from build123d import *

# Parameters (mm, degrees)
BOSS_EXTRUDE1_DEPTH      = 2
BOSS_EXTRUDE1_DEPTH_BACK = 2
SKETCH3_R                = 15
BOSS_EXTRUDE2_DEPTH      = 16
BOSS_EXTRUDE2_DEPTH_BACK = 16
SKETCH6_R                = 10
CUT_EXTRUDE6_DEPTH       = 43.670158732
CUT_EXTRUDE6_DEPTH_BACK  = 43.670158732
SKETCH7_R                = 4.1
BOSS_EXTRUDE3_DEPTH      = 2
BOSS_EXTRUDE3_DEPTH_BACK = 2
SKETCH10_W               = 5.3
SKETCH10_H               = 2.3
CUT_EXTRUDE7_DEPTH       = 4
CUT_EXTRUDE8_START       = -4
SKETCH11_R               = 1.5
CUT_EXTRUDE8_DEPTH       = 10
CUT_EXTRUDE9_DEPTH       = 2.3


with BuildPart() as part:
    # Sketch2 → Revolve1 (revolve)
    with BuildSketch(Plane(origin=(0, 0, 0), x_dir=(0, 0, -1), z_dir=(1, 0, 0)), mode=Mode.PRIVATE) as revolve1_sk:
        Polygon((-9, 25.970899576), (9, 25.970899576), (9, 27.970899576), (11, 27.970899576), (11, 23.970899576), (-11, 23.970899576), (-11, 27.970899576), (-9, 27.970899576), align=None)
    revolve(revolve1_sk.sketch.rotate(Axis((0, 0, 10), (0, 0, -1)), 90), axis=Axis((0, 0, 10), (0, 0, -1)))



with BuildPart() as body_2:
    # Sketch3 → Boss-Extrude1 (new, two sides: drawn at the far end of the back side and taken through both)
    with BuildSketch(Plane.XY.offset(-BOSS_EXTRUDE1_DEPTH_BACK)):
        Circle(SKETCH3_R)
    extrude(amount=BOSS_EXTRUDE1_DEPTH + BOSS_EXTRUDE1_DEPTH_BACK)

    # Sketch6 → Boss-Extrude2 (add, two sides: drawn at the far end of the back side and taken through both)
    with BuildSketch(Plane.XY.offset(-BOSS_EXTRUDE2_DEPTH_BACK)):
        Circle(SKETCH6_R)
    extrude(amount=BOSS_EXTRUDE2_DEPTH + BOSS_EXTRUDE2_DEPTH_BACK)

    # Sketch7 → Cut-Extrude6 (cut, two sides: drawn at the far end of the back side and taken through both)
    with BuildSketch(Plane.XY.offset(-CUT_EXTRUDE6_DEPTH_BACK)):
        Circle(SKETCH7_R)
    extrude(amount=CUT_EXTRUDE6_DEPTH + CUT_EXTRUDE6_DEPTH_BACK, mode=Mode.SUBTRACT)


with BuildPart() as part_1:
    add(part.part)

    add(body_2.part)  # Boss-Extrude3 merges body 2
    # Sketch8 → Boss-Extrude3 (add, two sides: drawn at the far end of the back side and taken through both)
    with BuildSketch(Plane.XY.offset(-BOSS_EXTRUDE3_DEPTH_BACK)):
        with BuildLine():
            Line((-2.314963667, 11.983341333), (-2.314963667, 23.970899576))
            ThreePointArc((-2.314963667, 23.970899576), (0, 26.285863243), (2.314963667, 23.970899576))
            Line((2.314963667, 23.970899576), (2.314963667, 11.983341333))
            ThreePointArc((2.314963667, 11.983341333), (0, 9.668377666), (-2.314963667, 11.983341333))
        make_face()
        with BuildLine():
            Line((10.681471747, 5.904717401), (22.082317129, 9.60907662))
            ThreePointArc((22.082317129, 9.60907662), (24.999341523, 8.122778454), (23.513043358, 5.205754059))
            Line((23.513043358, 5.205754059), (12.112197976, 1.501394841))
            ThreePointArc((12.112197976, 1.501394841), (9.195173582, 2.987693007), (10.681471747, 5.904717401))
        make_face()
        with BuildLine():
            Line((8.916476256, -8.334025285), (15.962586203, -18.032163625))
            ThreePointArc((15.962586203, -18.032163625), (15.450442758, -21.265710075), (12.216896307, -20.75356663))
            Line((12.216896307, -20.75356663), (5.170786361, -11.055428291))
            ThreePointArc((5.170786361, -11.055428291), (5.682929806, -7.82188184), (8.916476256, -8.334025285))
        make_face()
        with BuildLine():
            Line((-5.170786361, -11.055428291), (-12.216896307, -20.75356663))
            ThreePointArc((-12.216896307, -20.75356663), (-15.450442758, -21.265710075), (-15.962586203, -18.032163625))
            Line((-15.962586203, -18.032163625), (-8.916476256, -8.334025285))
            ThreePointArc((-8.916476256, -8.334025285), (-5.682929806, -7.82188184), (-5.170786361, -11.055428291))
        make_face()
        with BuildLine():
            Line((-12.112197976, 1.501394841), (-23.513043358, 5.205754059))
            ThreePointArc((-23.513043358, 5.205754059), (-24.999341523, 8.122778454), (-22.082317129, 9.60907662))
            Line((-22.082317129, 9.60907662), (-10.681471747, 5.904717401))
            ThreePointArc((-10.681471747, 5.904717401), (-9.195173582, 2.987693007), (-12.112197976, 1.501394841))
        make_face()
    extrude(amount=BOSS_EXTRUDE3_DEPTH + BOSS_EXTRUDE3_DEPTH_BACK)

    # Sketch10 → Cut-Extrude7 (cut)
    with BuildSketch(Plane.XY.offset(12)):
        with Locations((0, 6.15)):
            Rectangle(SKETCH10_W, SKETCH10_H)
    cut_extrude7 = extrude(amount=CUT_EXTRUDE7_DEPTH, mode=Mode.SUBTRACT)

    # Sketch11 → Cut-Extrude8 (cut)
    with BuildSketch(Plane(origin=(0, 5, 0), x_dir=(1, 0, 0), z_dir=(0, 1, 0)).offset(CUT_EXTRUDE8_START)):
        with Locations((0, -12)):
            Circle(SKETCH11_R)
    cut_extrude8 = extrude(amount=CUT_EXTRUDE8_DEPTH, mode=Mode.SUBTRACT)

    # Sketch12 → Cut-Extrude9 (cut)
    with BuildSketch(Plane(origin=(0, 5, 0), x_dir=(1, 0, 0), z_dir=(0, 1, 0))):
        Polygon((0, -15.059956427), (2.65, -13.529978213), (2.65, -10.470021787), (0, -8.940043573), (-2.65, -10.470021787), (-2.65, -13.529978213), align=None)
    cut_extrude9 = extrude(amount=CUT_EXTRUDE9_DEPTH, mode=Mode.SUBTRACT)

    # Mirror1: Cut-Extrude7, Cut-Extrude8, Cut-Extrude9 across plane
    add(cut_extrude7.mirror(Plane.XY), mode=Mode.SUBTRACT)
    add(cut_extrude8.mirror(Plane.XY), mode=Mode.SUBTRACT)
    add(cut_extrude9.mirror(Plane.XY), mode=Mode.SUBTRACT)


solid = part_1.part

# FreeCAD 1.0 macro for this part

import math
import FreeCAD as App
import Part
import Sketcher
Q = App.Units.Quantity


def add_polygon(sketch, points):
    """Adds a closed chain of lines whose ends are joined by coincident constraints."""
    first, n = sketch.GeometryCount, len(points)
    for a, b in zip(points, points[1:] + points[:1]):
        sketch.addGeometry(Part.LineSegment(App.Vector(*a, 0), App.Vector(*b, 0)), False)
    for i in range(n):
        sketch.addConstraint(Sketcher.Constraint("Coincident", first + i, 2, first + (i + 1) % n, 1))

doc = App.newDocument("Part")
body = doc.addObject("PartDesign::Body", "Body")

sketch1 = body.newObject("Sketcher::SketchObject", "Sketch")
sketch1.AttachmentSupport = (doc.getObject("YZ_Plane"), [""])
sketch1.MapMode = "FlatFace"
add_polygon(sketch1, [(26, -9), (26, 9), (28, 9), (28, 11), (24, 11), (24, -11), (28, -11), (28, -9)])
sketch1.addConstraint([
    Sketcher.Constraint("Vertical", 0),
    Sketcher.Constraint("Horizontal", 1),
    Sketcher.Constraint("Vertical", 2),
    Sketcher.Constraint("Horizontal", 3),
    Sketcher.Constraint("Vertical", 4),
    Sketcher.Constraint("Horizontal", 5),
    Sketcher.Constraint("Vertical", 6),
    Sketcher.Constraint("Horizontal", 7),
    Sketcher.Constraint("Symmetric", 2, 2, 5, 2, -1),
    Sketcher.Constraint("Equal", 7, 2),
    Sketcher.Constraint("Equal", 2, 6),
    Sketcher.Constraint("DistanceX", 1, 1, 1, 2, Q("2 mm")),
    Sketcher.Constraint("DistanceX", 3, 2, 3, 1, Q("4 mm")),
    Sketcher.Constraint("DistanceY", 0, 1, 0, 2, Q("18 mm")),
    Sketcher.Constraint("DistanceX", -1, 1, 0, 2, Q("25.9709 mm")),
])
revolution = body.newObject("PartDesign::Revolution", "Revolution")
revolution.Profile = sketch1
revolution.ReferenceAxis = (sketch1, ["V_Axis"])
revolution.Angle = 360
body2 = doc.addObject("PartDesign::Body", "Body001")

sketch2 = body2.newObject("Sketcher::SketchObject", "Sketch001")
sketch2.AttachmentSupport = (doc.getObject("XY_Plane001"), [""])
sketch2.MapMode = "FlatFace"
sketch2.addGeometry(Part.Circle(App.Vector(0, 0, 0), App.Vector(0, 0, 1), 15), False)
sketch2.addConstraint([
    Sketcher.Constraint("Coincident", 0, 3, -1, 1),
    Sketcher.Constraint("Diameter", 0, Q("30 mm")),
])
pad1 = body2.newObject("PartDesign::Pad", "Pad")
pad1.Profile = sketch2
pad1.Type = "TwoLengths"
pad1.Length = 2
pad1.Length2 = 2

sketch3 = body2.newObject("Sketcher::SketchObject", "Sketch002")
sketch3.AttachmentSupport = (doc.getObject("XY_Plane001"), [""])
sketch3.MapMode = "FlatFace"
sketch3.addGeometry(Part.Circle(App.Vector(0, 0, 0), App.Vector(0, 0, 1), 10), False)
sketch3.addConstraint([
    Sketcher.Constraint("Coincident", 0, 3, -1, 1),
    Sketcher.Constraint("Diameter", 0, Q("20 mm")),
])
pad2 = body2.newObject("PartDesign::Pad", "Pad001")
pad2.Profile = sketch3
pad2.Type = "TwoLengths"
pad2.Length = 16
pad2.Length2 = 16

sketch4 = body2.newObject("Sketcher::SketchObject", "Sketch003")
sketch4.AttachmentSupport = (doc.getObject("XY_Plane001"), [""])
sketch4.MapMode = "FlatFace"
sketch4.addGeometry(Part.Circle(App.Vector(0, 0, 0), App.Vector(0, 0, 1), 4.1), False)
sketch4.addConstraint([
    Sketcher.Constraint("Coincident", 0, 3, -1, 1),
    Sketcher.Constraint("Diameter", 0, Q("8.2 mm")),
])
pocket1 = body2.newObject("PartDesign::Pocket", "Pocket")
pocket1.Profile = sketch4
pocket1.Type = "ThroughAll"
pocket1.Midplane = True
body.AllowCompound = True
doc.recompute()

boolean = body.newObject("PartDesign::Boolean", "Boolean")
boolean.Type = "Fuse"
boolean.addObjects([body2])

sketch5 = body.newObject("Sketcher::SketchObject", "Sketch004")
sketch5.AttachmentSupport = (doc.getObject("XY_Plane"), [""])
sketch5.MapMode = "FlatFace"
sketch5.addGeometry([
    Part.LineSegment(App.Vector(-2.3, 24, 0), App.Vector(-2.3, 12, 0)),
    Part.ArcOfCircle(Part.Circle(App.Vector(0, 12, 0), App.Vector(0, 0, 1), 2.3), math.radians(180), math.radians(360)),
    Part.LineSegment(App.Vector(2.3, 12, 0), App.Vector(2.3, 24, 0)),
    Part.ArcOfCircle(Part.Circle(App.Vector(0, 24, 0), App.Vector(0, 0, 1), 2.3), math.radians(0), math.radians(180)),
    Part.LineSegment(App.Vector(22.1, 9.6, 0), App.Vector(10.7, 5.9, 0)),
    Part.ArcOfCircle(Part.Circle(App.Vector(11.4, 3.7, 0), App.Vector(0, 0, 1), 2.3), math.radians(108), math.radians(288)),
    Part.LineSegment(App.Vector(12.1, 1.5, 0), App.Vector(23.5, 5.2, 0)),
    Part.ArcOfCircle(Part.Circle(App.Vector(22.8, 7.4, 0), App.Vector(0, 0, 1), 2.3), math.radians(-72), math.radians(108)),
    Part.LineSegment(App.Vector(16, -18, 0), App.Vector(8.9, -8.3, 0)),
    Part.ArcOfCircle(Part.Circle(App.Vector(7, -9.7, 0), App.Vector(0, 0, 1), 2.3), math.radians(36), math.radians(216)),
    Part.LineSegment(App.Vector(5.2, -11.1, 0), App.Vector(12.2, -20.8, 0)),
    Part.ArcOfCircle(Part.Circle(App.Vector(14.1, -19.4, 0), App.Vector(0, 0, 1), 2.3), math.radians(-144), math.radians(36)),
    Part.LineSegment(App.Vector(-12.2, -20.8, 0), App.Vector(-5.2, -11.1, 0)),
    Part.ArcOfCircle(Part.Circle(App.Vector(-7, -9.7, 0), App.Vector(0, 0, 1), 2.3), math.radians(-36), math.radians(144)),
    Part.LineSegment(App.Vector(-8.9, -8.3, 0), App.Vector(-16, -18, 0)),
    Part.ArcOfCircle(Part.Circle(App.Vector(-14.1, -19.4, 0), App.Vector(0, 0, 1), 2.3), math.radians(144), math.radians(324)),
    Part.LineSegment(App.Vector(-23.5, 5.2, 0), App.Vector(-12.1, 1.5, 0)),
    Part.ArcOfCircle(Part.Circle(App.Vector(-11.4, 3.7, 0), App.Vector(0, 0, 1), 2.3), math.radians(-108), math.radians(72)),
    Part.LineSegment(App.Vector(-10.7, 5.9, 0), App.Vector(-22.1, 9.6, 0)),
    Part.ArcOfCircle(Part.Circle(App.Vector(-22.8, 7.4, 0), App.Vector(0, 0, 1), 2.3), math.radians(72), math.radians(252)),
], False)
sketch5.addConstraint([
    Sketcher.Constraint("Tangent", 0, 2, 1, 1),
    Sketcher.Constraint("Tangent", 1, 2, 2, 1),
    Sketcher.Constraint("Tangent", 2, 2, 3, 1),
    Sketcher.Constraint("Tangent", 3, 2, 0, 1),
    Sketcher.Constraint("Tangent", 4, 2, 5, 1),
    Sketcher.Constraint("Tangent", 5, 2, 6, 1),
    Sketcher.Constraint("Tangent", 6, 2, 7, 1),
    Sketcher.Constraint("Tangent", 7, 2, 4, 1),
    Sketcher.Constraint("Tangent", 8, 2, 9, 1),
    Sketcher.Constraint("Tangent", 9, 2, 10, 1),
    Sketcher.Constraint("Tangent", 10, 2, 11, 1),
    Sketcher.Constraint("Tangent", 11, 2, 8, 1),
    Sketcher.Constraint("Tangent", 12, 2, 13, 1),
    Sketcher.Constraint("Tangent", 13, 2, 14, 1),
    Sketcher.Constraint("Tangent", 14, 2, 15, 1),
    Sketcher.Constraint("Tangent", 15, 2, 12, 1),
    Sketcher.Constraint("Tangent", 16, 2, 17, 1),
    Sketcher.Constraint("Tangent", 17, 2, 18, 1),
    Sketcher.Constraint("Tangent", 18, 2, 19, 1),
    Sketcher.Constraint("Tangent", 19, 2, 16, 1),
    Sketcher.Constraint("Vertical", 0),
    Sketcher.Constraint("Vertical", 2),
    Sketcher.Constraint("Equal", 3, 5),
    Sketcher.Constraint("Equal", 5, 7),
    Sketcher.Constraint("Equal", 7, 9),
    Sketcher.Constraint("Equal", 9, 11),
    Sketcher.Constraint("Equal", 11, 13),
    Sketcher.Constraint("Equal", 13, 15),
    Sketcher.Constraint("Equal", 15, 17),
    Sketcher.Constraint("Equal", 17, 19),
    Sketcher.Constraint("Symmetric", 9, 3, 13, 3, -2),
    Sketcher.Constraint("Symmetric", 11, 3, 15, 3, -2),
    Sketcher.Constraint("Symmetric", 5, 3, 17, 3, -2),
    Sketcher.Constraint("Symmetric", 7, 3, 19, 3, -2),
    Sketcher.Constraint("PointOnObject", 1, 3, -2),
    Sketcher.Constraint("Equal", 6, 8),
    Sketcher.Constraint("Angle", 4, Q("-162 deg")),
    Sketcher.Constraint("Angle", 8, Q("126 deg")),
    Sketcher.Constraint("Radius", 1, Q("2.314964 mm")),
    Sketcher.Constraint("DistanceY", 0, 2, 0, 1, Q("11.987558 mm")),
    Sketcher.Constraint("DistanceY", -1, 1, 3, 3, Q("23.9709 mm")),
    Sketcher.Constraint("DistanceX", 0, 2, 5, 3, Q("13.711799 mm")),
    Sketcher.Constraint("DistanceX", 9, 2, 11, 2, Q("10.7918 mm")),
    Sketcher.Constraint("DistanceX", -1, 1, 9, 3, Q("7.043631 mm")),
    Sketcher.Constraint("DistanceY", 9, 2, -1, 1, Q("11.055428 mm")),
    Sketcher.Constraint("DistanceY", 11, 3, 5, 3, Q("23.095921 mm")),
])
pad3 = body.newObject("PartDesign::Pad", "Pad002")
pad3.Profile = sketch5
pad3.Type = "TwoLengths"
pad3.Length = 2
pad3.Length2 = 2

sketch6 = body.newObject("Sketcher::SketchObject", "Sketch005")
sketch6.AttachmentSupport = (doc.getObject("XY_Plane"), [""])
sketch6.MapMode = "FlatFace"
sketch6.AttachmentOffset = App.Placement(App.Vector(0, 0, 12), App.Rotation())
add_polygon(sketch6, [(-2.6, 7.3), (-2.6, 5), (2.6, 5), (2.6, 7.3)])
sketch6.addConstraint([
    Sketcher.Constraint("Vertical", 0),
    Sketcher.Constraint("Horizontal", 1),
    Sketcher.Constraint("Vertical", 2),
    Sketcher.Constraint("Horizontal", 3),
    Sketcher.Constraint("DistanceX", 1, 1, 1, 2, Q("5.3 mm")),
    Sketcher.Constraint("DistanceY", 0, 2, 0, 1, Q("2.3 mm")),
    Sketcher.Constraint("DistanceY", -1, 1, 0, 2, Q("5 mm")),
    Sketcher.Constraint("DistanceX", 0, 2, -1, 1, Q("2.65 mm")),
])
pocket2 = body.newObject("PartDesign::Pocket", "Pocket001")
pocket2.Profile = sketch6
pocket2.Length = 4
pocket2.Reversed = True

sketch7 = body.newObject("Sketcher::SketchObject", "Sketch006")
sketch7.AttachmentSupport = (doc.getObject("XZ_Plane"), [""])
sketch7.MapMode = "FlatFace"
sketch7.AttachmentOffset = App.Placement(App.Vector(0, 0, -1), App.Rotation())
sketch7.addGeometry(Part.Circle(App.Vector(0, 12, 0), App.Vector(0, 0, 1), 1.5), False)
sketch7.addConstraint([
    Sketcher.Constraint("PointOnObject", 0, 3, -2),
    Sketcher.Constraint("Diameter", 0, Q("3 mm")),
    Sketcher.Constraint("DistanceY", -1, 1, 0, 3, Q("12 mm")),
])
pocket3 = body.newObject("PartDesign::Pocket", "Pocket002")
pocket3.Profile = sketch7
pocket3.Length = 10

sketch8 = body.newObject("Sketcher::SketchObject", "Sketch007")
sketch8.AttachmentSupport = (doc.getObject("XZ_Plane"), [""])
sketch8.MapMode = "FlatFace"
sketch8.AttachmentOffset = App.Placement(App.Vector(0, 0, -5), App.Rotation())
add_polygon(sketch8, [(0, 15.1), (2.6, 13.5), (2.6, 10.5), (0, 8.9), (-2.6, 10.5), (-2.6, 13.5)])
sketch8.addConstraint([
    Sketcher.Constraint("Vertical", 1),
    Sketcher.Constraint("Vertical", 4),
    Sketcher.Constraint("Symmetric", 1, 2, 3, 2, -2),
    Sketcher.Constraint("PointOnObject", 2, 2, -2),
    Sketcher.Constraint("PointOnObject", 5, 2, -2),
    Sketcher.Constraint("Parallel", 0, 3),
    Sketcher.Constraint("Parallel", 2, 5),
    Sketcher.Constraint("Angle", 0, Q("-30 deg")),
    Sketcher.Constraint("DistanceX", 3, 2, 1, 2, Q("5.3 mm")),
    Sketcher.Constraint("DistanceY", 1, 2, 1, 1, Q("3.059956 mm")),
    Sketcher.Constraint("DistanceY", -1, 1, 0, 2, Q("13.529978 mm")),
])
pocket4 = body.newObject("PartDesign::Pocket", "Pocket003")
pocket4.Profile = sketch8
pocket4.Length = 2.3
doc.recompute()

mirrored = body.newObject("PartDesign::Mirrored", "Mirrored")
mirrored.Originals = [pocket2, pocket3, pocket4]
mirrored.MirrorPlane = (doc.getObject("XY_Plane"), [""])
body.Tip = mirrored

doc.recompute()
